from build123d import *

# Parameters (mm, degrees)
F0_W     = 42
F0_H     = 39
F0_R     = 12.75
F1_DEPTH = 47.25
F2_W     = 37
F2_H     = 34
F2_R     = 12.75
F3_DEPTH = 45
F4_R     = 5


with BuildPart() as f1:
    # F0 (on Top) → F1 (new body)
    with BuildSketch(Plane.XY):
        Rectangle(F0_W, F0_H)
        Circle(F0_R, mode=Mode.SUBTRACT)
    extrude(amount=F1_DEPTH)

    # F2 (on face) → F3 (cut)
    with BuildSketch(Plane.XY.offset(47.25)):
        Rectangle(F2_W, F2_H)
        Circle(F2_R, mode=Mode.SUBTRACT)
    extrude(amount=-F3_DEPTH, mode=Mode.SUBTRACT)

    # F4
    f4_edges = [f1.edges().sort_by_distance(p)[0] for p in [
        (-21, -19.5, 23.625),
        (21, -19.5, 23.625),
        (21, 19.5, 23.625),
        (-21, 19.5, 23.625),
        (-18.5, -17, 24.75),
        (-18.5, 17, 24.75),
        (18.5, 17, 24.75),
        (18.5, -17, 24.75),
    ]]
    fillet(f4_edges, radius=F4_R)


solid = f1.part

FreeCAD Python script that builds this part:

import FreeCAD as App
import Part
import Sketcher
Q = App.Units.Quantity


def edges_at(feature, points):
    """Names of the edges that pass closest to the given points."""
    edges = feature.Shape.Edges
    near = lambda p: min(range(len(edges)), key=lambda i: edges[i].distToShape(Part.Vertex(*p))[0])
    return sorted({f"Edge{near(p) + 1}" for p in points})

doc = App.newDocument("Part")
params = doc.addObject("Spreadsheet::Sheet", "Params")
for row, (alias, value) in enumerate([
    ("sketch1_diameter", "25.5 mm"),
    ("sketch1_width", "42 mm"),
    ("sketch1_height", "39 mm"),
    ("pad1_length", "47.25 mm"),
    ("sketch2_diameter", "25.5 mm"),
    ("sketch2_width", "37 mm"),
    ("sketch2_height", "34 mm"),
    ("pocket1_length", "45 mm"),
    ("fillet_radius", "5 mm"),
], start=1):
    params.set(f"A{row}", alias)
    params.set(f"B{row}", "=" + value)
    params.setAlias(f"B{row}", alias)

body = doc.addObject("PartDesign::Body", "Body")

sketch1 = doc.addObject("Sketcher::SketchObject", "Sketch")
body.addObject(sketch1)
sketch1.AttachmentSupport = (doc.XY_Plane, [""])
sketch1.MapMode = "FlatFace"
sketch1.addGeometry(Part.LineSegment(App.Vector(-21, 20, 0), App.Vector(-21, -20, 0)), False)
sketch1.addGeometry(Part.LineSegment(App.Vector(-21, -20, 0), App.Vector(21, -20, 0)), False)
sketch1.addGeometry(Part.LineSegment(App.Vector(21, -20, 0), App.Vector(21, 20, 0)), False)
sketch1.addGeometry(Part.LineSegment(App.Vector(21, 20, 0), App.Vector(-21, 20, 0)), False)
sketch1.addGeometry(Part.Circle(App.Vector(0, 0, 0), App.Vector(0, 0, 1), 13), False)
sketch1.addConstraint(Sketcher.Constraint("Coincident", 0, 2, 1, 1))
sketch1.addConstraint(Sketcher.Constraint("Coincident", 1, 2, 2, 1))
sketch1.addConstraint(Sketcher.Constraint("Coincident", 2, 2, 3, 1))
sketch1.addConstraint(Sketcher.Constraint("Coincident", 3, 2, 0, 1))
sketch1.addConstraint(Sketcher.Constraint("Vertical", 0))
sketch1.addConstraint(Sketcher.Constraint("Horizontal", 1))
sketch1.addConstraint(Sketcher.Constraint("Vertical", 2))
sketch1.addConstraint(Sketcher.Constraint("Horizontal", 3))
sketch1.addConstraint(Sketcher.Constraint("Coincident", 4, 3, -1, 1))
sketch1.addConstraint(Sketcher.Constraint("Symmetric", 0, 2, 2, 2, -1, 1))
sketch1.addConstraint(Sketcher.Constraint("Diameter", 4, Q("25.5 mm")))
sketch1.addConstraint(Sketcher.Constraint("DistanceX", 1, 1, 1, 2, Q("42 mm")))
sketch1.addConstraint(Sketcher.Constraint("DistanceY", 0, 2, 0, 1, Q("39 mm")))
sketch1.setExpression("Constraints[10]", "Params.sketch1_diameter")
sketch1.setExpression("Constraints[11]", "Params.sketch1_width")
sketch1.setExpression("Constraints[12]", "Params.sketch1_height")
pad1 = doc.addObject("PartDesign::Pad", "Pad")
body.addObject(pad1)
pad1.Profile = sketch1
pad1.setExpression("Length", "Params.pad1_length")

sketch2 = doc.addObject("Sketcher::SketchObject", "Sketch001")
body.addObject(sketch2)
sketch2.AttachmentSupport = (doc.XY_Plane, [""])
sketch2.MapMode = "FlatFace"
sketch2.AttachmentOffset = App.Placement(App.Vector(0, 0, 47.25), App.Rotation())
sketch2.addGeometry(Part.LineSegment(App.Vector(-18, 17, 0), App.Vector(-18, -17, 0)), False)
sketch2.addGeometry(Part.LineSegment(App.Vector(-18, -17, 0), App.Vector(18, -17, 0)), False)
sketch2.addGeometry(Part.LineSegment(App.Vector(18, -17, 0), App.Vector(18, 17, 0)), False)
sketch2.addGeometry(Part.LineSegment(App.Vector(18, 17, 0), App.Vector(-18, 17, 0)), False)
sketch2.addGeometry(Part.Circle(App.Vector(0, 0, 0), App.Vector(0, 0, 1), 13), False)
sketch2.addConstraint(Sketcher.Constraint("Coincident", 0, 2, 1, 1))
sketch2.addConstraint(Sketcher.Constraint("Coincident", 1, 2, 2, 1))
sketch2.addConstraint(Sketcher.Constraint("Coincident", 2, 2, 3, 1))
sketch2.addConstraint(Sketcher.Constraint("Coincident", 3, 2, 0, 1))
sketch2.addConstraint(Sketcher.Constraint("Vertical", 0))
sketch2.addConstraint(Sketcher.Constraint("Horizontal", 1))
sketch2.addConstraint(Sketcher.Constraint("Vertical", 2))
sketch2.addConstraint(Sketcher.Constraint("Horizontal", 3))
sketch2.addConstraint(Sketcher.Constraint("Coincident", 4, 3, -1, 1))
sketch2.addConstraint(Sketcher.Constraint("Symmetric", 0, 2, 2, 2, -1, 1))
sketch2.addConstraint(Sketcher.Constraint("Diameter", 4, Q("25.5 mm")))
sketch2.addConstraint(Sketcher.Constraint("DistanceX", 1, 1, 1, 2, Q("37 mm")))
sketch2.addConstraint(Sketcher.Constraint("DistanceY", 0, 2, 0, 1, Q("34 mm")))
sketch2.setExpression("Constraints[10]", "Params.sketch2_diameter")
sketch2.setExpression("Constraints[11]", "Params.sketch2_width")
sketch2.setExpression("Constraints[12]", "Params.sketch2_height")
pocket1 = doc.addObject("PartDesign::Pocket", "Pocket")
body.addObject(pocket1)
pocket1.Profile = sketch2
pocket1.setExpression("Length", "Params.pocket1_length")
doc.recompute()

fillet = doc.addObject("PartDesign::Fillet", "Fillet")
body.addObject(fillet)
fillet.Base = (pocket1, edges_at(pocket1, [
    (-21, -19.5, 23.625),
    (21, -19.5, 23.625),
    (21, 19.5, 23.625),
    (-21, 19.5, 23.625),
    (-18.5, -17, 24.75),
    (-18.5, 17, 24.75),
    (18.5, 17, 24.75),
    (18.5, -17, 24.75),
]))
fillet.setExpression("Radius", "Params.fillet_radius")

doc.recompute()
